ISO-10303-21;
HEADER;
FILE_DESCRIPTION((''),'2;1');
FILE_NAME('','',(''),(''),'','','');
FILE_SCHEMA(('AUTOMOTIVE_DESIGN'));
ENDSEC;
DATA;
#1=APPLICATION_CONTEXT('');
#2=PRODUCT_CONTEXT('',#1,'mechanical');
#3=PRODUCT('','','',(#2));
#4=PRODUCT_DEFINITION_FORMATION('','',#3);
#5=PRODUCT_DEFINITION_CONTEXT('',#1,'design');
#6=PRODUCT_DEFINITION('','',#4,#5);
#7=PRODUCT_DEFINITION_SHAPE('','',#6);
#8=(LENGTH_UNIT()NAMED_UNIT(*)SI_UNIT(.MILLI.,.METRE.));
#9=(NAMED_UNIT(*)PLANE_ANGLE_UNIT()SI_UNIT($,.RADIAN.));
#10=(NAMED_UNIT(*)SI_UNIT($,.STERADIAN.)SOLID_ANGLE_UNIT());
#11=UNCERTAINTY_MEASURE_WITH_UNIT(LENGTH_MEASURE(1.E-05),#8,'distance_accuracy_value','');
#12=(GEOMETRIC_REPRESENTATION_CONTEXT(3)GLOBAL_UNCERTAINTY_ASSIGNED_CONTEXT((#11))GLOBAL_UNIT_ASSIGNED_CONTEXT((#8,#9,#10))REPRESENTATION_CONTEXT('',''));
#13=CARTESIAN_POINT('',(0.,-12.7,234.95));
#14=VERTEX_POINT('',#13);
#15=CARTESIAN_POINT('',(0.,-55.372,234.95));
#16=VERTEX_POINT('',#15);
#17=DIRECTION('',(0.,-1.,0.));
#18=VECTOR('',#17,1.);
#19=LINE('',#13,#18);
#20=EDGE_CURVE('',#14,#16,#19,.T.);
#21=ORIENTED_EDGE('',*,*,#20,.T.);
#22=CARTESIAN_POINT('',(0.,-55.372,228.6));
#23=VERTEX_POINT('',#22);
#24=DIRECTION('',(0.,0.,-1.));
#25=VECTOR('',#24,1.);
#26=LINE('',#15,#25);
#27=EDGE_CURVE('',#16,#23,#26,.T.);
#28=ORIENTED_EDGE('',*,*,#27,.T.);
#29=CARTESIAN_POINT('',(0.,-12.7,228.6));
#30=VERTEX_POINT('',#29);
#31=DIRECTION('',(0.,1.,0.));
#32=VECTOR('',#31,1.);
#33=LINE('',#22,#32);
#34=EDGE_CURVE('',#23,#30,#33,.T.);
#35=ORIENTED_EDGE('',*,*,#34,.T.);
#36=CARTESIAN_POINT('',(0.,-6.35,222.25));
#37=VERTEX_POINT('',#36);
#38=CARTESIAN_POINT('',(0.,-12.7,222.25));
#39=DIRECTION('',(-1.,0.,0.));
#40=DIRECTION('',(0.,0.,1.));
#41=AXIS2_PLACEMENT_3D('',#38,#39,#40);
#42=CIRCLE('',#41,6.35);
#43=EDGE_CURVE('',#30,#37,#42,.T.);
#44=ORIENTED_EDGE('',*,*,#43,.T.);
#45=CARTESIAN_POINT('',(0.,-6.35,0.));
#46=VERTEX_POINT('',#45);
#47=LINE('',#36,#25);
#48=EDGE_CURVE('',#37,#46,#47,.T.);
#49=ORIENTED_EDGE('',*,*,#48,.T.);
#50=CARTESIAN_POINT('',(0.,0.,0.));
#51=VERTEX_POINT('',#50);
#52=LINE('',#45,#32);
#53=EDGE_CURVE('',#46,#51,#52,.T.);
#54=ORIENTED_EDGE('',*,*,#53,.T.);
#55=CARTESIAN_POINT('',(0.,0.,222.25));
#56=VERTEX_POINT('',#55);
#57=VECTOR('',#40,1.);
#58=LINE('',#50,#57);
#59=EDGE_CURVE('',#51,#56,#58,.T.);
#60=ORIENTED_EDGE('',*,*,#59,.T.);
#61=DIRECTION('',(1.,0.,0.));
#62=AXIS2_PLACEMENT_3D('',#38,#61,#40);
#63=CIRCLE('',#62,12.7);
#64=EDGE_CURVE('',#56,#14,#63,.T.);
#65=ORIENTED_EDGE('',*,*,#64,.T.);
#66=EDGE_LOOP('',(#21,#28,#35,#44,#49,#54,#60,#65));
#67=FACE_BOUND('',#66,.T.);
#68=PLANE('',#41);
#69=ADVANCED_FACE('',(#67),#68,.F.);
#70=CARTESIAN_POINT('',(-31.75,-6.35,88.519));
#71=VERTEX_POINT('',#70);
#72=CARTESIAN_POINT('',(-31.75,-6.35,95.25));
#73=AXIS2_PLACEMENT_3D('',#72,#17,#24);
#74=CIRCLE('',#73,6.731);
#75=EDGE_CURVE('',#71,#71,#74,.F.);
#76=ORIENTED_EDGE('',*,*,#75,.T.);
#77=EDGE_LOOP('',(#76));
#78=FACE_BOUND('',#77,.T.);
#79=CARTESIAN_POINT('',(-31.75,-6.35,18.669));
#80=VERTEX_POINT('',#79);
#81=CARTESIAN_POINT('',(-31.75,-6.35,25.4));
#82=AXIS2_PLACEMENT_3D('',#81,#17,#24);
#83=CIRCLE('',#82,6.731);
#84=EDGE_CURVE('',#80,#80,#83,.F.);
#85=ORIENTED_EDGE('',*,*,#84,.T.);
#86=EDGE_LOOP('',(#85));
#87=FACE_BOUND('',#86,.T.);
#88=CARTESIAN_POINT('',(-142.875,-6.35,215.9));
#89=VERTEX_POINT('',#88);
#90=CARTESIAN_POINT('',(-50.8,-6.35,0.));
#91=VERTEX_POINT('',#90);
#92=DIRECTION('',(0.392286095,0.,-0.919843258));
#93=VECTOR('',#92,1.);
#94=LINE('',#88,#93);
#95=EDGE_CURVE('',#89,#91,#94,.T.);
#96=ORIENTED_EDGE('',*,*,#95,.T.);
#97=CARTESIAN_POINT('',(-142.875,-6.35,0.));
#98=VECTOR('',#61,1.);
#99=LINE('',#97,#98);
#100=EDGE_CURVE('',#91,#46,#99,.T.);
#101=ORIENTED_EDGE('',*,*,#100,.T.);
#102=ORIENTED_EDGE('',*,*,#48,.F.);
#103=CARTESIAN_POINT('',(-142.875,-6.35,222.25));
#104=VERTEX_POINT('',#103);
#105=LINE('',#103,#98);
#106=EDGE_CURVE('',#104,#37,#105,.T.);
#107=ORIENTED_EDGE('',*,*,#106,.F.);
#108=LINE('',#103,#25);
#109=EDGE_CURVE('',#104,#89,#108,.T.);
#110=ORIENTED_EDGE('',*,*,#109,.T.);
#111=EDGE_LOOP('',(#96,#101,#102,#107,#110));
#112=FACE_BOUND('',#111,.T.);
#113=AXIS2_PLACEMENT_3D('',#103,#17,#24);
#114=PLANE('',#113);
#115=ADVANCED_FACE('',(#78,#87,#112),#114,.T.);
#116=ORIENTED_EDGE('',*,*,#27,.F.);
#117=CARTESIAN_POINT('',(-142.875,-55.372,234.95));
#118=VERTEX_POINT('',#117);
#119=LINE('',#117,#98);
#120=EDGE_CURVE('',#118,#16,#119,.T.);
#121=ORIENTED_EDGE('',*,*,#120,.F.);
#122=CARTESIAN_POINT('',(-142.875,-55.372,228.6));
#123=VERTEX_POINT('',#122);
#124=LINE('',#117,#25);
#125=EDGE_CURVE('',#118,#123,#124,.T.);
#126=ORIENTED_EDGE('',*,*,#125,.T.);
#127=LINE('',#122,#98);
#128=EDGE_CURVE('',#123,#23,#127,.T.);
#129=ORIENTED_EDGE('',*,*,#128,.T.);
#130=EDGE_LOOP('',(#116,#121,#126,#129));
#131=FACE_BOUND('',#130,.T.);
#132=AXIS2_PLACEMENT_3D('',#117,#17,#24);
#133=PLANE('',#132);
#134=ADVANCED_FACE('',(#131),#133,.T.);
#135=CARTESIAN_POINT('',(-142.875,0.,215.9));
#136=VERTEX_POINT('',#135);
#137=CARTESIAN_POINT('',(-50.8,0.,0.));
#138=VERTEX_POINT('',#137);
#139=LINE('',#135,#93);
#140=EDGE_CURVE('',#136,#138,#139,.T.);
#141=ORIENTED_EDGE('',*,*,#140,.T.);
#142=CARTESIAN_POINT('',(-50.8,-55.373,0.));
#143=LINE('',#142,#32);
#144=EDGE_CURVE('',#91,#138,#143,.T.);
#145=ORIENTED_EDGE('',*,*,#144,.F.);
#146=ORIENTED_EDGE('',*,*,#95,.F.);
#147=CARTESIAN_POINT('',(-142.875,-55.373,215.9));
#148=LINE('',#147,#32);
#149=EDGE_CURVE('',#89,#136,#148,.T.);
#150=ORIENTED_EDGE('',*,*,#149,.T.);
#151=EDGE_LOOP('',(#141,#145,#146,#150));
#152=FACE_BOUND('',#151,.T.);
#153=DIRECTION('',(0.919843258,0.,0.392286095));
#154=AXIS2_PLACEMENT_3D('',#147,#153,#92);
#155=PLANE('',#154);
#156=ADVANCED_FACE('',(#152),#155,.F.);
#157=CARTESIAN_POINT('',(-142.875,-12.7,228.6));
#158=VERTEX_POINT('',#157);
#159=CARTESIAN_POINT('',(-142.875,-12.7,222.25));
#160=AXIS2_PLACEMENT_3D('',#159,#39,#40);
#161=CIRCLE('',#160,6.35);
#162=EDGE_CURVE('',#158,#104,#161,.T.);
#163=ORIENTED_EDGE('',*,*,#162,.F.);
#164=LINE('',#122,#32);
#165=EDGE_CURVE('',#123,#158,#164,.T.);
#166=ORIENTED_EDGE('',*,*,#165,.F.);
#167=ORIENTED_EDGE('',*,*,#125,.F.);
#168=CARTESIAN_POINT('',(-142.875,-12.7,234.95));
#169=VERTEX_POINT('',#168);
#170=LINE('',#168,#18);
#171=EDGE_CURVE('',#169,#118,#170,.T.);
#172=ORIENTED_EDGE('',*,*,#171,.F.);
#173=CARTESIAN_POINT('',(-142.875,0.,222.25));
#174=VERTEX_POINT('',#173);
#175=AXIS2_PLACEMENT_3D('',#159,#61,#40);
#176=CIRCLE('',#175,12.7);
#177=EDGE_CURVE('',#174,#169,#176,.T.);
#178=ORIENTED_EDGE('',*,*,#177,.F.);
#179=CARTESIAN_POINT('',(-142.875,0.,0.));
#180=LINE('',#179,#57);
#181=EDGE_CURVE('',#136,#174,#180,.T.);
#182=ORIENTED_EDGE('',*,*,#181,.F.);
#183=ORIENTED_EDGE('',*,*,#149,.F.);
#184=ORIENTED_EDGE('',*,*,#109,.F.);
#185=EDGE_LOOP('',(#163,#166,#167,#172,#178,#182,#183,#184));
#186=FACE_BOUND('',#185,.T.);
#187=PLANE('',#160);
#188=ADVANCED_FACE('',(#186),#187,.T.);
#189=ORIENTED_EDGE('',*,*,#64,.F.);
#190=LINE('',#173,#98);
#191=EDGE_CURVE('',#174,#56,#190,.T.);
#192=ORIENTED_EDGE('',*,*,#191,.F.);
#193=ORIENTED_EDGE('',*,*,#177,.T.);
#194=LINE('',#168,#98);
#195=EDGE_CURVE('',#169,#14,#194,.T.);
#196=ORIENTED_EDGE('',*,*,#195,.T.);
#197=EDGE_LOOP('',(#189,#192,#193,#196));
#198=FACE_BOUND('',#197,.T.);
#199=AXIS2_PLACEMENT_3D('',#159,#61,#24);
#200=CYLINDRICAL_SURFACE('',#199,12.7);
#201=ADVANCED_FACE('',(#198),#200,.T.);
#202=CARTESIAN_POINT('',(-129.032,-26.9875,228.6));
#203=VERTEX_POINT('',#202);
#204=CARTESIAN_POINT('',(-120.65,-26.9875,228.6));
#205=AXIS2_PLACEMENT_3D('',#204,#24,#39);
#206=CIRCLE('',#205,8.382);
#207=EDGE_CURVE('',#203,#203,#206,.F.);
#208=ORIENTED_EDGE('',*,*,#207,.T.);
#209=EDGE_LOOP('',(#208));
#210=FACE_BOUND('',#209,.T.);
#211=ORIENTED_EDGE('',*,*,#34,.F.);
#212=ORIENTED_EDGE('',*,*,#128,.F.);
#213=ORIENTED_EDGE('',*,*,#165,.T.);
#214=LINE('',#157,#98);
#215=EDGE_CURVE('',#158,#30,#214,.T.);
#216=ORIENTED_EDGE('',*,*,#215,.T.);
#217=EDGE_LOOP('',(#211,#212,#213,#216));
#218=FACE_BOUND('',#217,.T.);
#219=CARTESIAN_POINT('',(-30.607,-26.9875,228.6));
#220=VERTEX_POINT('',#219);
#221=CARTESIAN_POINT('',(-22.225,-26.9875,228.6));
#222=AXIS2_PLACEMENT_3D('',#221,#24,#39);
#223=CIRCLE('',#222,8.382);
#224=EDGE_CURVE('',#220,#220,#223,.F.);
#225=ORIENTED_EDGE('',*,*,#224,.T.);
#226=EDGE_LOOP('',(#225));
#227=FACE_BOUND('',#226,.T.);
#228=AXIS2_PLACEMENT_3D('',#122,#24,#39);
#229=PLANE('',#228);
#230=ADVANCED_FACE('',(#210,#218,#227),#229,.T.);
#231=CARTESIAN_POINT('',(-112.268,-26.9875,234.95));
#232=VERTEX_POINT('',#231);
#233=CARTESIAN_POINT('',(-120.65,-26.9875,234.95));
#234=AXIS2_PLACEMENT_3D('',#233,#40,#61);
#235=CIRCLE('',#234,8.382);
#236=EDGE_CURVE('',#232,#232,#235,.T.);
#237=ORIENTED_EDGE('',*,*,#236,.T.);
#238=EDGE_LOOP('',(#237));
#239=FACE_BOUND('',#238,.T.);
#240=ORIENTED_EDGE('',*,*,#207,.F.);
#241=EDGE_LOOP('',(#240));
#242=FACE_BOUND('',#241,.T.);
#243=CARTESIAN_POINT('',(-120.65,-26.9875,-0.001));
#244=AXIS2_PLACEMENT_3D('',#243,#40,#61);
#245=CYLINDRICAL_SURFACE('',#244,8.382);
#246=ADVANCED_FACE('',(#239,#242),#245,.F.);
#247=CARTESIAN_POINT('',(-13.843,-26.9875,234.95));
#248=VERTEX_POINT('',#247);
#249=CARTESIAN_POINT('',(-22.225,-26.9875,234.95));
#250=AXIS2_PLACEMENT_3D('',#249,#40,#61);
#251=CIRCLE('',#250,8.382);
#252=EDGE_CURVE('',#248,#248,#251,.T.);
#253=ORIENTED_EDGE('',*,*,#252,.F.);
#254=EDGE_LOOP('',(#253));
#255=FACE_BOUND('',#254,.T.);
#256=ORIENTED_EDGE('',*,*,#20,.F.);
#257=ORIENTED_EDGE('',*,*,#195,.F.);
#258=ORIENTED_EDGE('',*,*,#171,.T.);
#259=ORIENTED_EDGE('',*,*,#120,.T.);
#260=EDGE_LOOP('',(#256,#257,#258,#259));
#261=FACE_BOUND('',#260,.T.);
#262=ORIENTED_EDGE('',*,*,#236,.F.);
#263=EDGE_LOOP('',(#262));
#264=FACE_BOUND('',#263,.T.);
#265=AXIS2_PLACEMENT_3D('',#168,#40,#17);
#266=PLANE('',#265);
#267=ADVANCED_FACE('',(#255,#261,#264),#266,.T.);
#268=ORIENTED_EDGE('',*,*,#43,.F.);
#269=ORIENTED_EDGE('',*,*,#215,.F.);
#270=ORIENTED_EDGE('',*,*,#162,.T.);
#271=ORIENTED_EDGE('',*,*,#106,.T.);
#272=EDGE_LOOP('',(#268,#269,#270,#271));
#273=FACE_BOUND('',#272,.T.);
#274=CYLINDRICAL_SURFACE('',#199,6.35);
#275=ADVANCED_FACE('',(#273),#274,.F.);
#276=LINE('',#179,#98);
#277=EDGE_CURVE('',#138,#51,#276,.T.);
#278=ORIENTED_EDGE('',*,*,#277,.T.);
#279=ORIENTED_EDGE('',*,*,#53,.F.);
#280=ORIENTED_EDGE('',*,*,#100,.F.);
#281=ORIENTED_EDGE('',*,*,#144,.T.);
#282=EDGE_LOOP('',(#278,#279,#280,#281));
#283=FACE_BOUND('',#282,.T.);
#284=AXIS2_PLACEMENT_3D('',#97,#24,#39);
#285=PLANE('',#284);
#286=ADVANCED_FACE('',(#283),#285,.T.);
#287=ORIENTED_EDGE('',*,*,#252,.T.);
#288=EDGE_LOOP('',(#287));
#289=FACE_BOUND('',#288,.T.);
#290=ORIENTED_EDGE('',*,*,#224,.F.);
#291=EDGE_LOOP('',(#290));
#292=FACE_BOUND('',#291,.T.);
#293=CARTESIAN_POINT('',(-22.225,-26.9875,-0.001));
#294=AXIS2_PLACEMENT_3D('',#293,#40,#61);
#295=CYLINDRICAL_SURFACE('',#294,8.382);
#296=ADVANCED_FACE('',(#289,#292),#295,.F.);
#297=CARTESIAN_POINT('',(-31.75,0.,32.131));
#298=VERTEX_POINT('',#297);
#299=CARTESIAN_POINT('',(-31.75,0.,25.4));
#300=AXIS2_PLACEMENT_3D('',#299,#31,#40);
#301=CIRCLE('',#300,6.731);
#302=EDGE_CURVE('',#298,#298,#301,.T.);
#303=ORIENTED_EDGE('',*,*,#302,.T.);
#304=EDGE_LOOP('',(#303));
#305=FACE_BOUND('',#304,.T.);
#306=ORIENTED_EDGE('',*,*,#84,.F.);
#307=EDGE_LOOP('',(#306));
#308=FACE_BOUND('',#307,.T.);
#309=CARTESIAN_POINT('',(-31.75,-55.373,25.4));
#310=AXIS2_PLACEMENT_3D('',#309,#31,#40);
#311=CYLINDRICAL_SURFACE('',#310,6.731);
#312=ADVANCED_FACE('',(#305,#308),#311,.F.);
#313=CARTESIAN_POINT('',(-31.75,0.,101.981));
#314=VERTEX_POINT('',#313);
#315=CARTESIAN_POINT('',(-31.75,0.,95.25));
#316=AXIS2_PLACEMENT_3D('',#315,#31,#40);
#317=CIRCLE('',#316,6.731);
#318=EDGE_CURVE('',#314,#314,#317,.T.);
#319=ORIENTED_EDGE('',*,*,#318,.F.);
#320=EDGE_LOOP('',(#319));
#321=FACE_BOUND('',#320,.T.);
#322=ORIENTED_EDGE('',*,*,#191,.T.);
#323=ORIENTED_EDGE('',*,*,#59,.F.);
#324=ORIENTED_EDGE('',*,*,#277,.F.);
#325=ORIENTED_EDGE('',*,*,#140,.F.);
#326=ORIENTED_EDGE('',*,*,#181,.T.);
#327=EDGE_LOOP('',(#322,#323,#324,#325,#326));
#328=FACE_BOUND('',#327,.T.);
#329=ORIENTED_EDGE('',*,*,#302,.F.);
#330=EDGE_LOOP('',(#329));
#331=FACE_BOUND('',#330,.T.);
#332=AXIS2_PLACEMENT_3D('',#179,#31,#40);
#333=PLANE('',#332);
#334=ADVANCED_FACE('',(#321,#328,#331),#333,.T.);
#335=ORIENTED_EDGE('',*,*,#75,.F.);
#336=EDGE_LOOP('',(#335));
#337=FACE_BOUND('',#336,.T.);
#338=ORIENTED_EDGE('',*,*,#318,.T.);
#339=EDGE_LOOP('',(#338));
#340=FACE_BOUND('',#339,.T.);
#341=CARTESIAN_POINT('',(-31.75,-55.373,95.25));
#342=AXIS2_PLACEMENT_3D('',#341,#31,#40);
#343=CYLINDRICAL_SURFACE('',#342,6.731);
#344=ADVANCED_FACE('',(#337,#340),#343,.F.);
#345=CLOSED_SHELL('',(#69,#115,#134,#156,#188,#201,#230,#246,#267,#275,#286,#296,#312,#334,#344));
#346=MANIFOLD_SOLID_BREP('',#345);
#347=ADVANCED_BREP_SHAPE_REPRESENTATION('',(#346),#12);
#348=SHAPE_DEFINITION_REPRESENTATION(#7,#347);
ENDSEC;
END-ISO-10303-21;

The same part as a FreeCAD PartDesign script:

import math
import FreeCAD as App
import Part
import Sketcher
Q = App.Units.Quantity


def add_polygon(sketch, points):
    """Adds a closed chain of lines whose ends are joined by coincident constraints."""
    first, n = sketch.GeometryCount, len(points)
    for a, b in zip(points, points[1:] + points[:1]):
        sketch.addGeometry(Part.LineSegment(App.Vector(*a, 0), App.Vector(*b, 0)), False)
    for i in range(n):
        sketch.addConstraint(Sketcher.Constraint("Coincident", first + i, 2, first + (i + 1) % n, 1))

doc = App.newDocument("Part")
body = doc.addObject("PartDesign::Body", "Body")

# Sketch on YZ plane
sketch1 = body.newObject("Sketcher::SketchObject", "Sketch")
sketch1.AttachmentSupport = (doc.getObject("YZ_Plane"), [""])
sketch1.MapMode = "FlatFace"
sketch1.addGeometry([
    Part.LineSegment(App.Vector(0, 0, 0), App.Vector(0, 222.25, 0)),  # 0
    Part.ArcOfCircle(Part.Circle(App.Vector(-12.7, 222.25, 0), App.Vector(0, 0, 1), 12.7), math.radians(0), math.radians(90)),  # 1
    Part.LineSegment(App.Vector(-12.7, 234.95, 0), App.Vector(-55.372, 234.95, 0)),  # 2
    Part.LineSegment(App.Vector(-55.372, 234.95, 0), App.Vector(-55.372, 228.6, 0)),  # 3
    Part.LineSegment(App.Vector(-55.372, 228.6, 0), App.Vector(-12.7, 228.6, 0)),  # 4
    Part.ArcOfCircle(Part.Circle(App.Vector(-12.7, 222.25, 0), App.Vector(0, 0, 1), 6.35), math.radians(0), math.radians(90)),  # 5
    Part.LineSegment(App.Vector(-6.35, 222.25, 0), App.Vector(-6.35, 0, 0)),  # 6
    Part.LineSegment(App.Vector(-6.35, 0, 0), App.Vector(0, 0, 0)),  # 7
], False)
sketch1.addConstraint([
    Sketcher.Constraint("Tangent", 0, 2, 1, 1),
    Sketcher.Constraint("Tangent", 1, 2, 2, 1),
    Sketcher.Constraint("Coincident", 2, 2, 3, 1),
    Sketcher.Constraint("Coincident", 3, 2, 4, 1),
    Sketcher.Constraint("Tangent", 4, 2, 5, 2),
    Sketcher.Constraint("Tangent", 5, 1, 6, 1),
    Sketcher.Constraint("Coincident", 6, 2, 7, 1),
    Sketcher.Constraint("Coincident", 7, 2, 0, 1),
    Sketcher.Constraint("Vertical", 0),
    Sketcher.Constraint("Horizontal", 2),
    Sketcher.Constraint("Vertical", 3),
    Sketcher.Constraint("Horizontal", 4),
    Sketcher.Constraint("Vertical", 6),
    Sketcher.Constraint("Horizontal", 7),
    Sketcher.Constraint("Coincident", 7, 2, -1, 1),
    Sketcher.Constraint("Coincident", 5, 3, 1, 3),
    Sketcher.Constraint("Radius", 1, Q("0.5 in")),
    Sketcher.Constraint("Radius", 5, Q("0.25 in")),
    Sketcher.Constraint("DistanceY", -1, 1, 3, 2, Q("9 in")),
    Sketcher.Constraint("DistanceX", 2, 2, 2, 1, Q("1.68 in")),
])
pad1 = body.newObject("PartDesign::Pad", "Pad")
pad1.Profile = sketch1
pad1.Length = Q("5.625 in")
pad1.Reversed = True

# Sketch on XY plane
sketch2 = body.newObject("Sketcher::SketchObject", "Sketch001")
sketch2.AttachmentSupport = (doc.getObject("XY_Plane"), [""])
sketch2.MapMode = "FlatFace"
sketch2.AttachmentOffset = App.Placement(App.Vector(0, 0, 9.25 * 25.4), App.Rotation())
sketch2.addGeometry(Part.Circle(App.Vector(-120.65, -26.9875, 0), App.Vector(0, 0, 1), 8.382), False)
sketch2.addConstraint([
    Sketcher.Constraint("Diameter", 0, Q("0.66 in")),
    Sketcher.Constraint("DistanceX", 0, 3, -1, 1, Q("4.75 in")),
    Sketcher.Constraint("DistanceY", 0, 3, -1, 1, Q("1.0625 in")),
])
pocket1 = body.newObject("PartDesign::Pocket", "Pocket")
pocket1.Profile = sketch2
pocket1.Type = "UpToFirst"

# Sketch on XY plane
sketch3 = body.newObject("Sketcher::SketchObject", "Sketch002")
sketch3.AttachmentSupport = (doc.getObject("XY_Plane"), [""])
sketch3.MapMode = "FlatFace"
sketch3.AttachmentOffset = App.Placement(App.Vector(0, 0, 9.25 * 25.4), App.Rotation())
sketch3.addGeometry(Part.Circle(App.Vector(-22.225, -26.9875, 0), App.Vector(0, 0, 1), 8.382), False)
sketch3.addConstraint([
    Sketcher.Constraint("Diameter", 0, Q("0.66 in")),
    Sketcher.Constraint("DistanceX", 0, 3, -1, 1, Q("0.875 in")),
    Sketcher.Constraint("DistanceY", 0, 3, -1, 1, Q("1.0625 in")),
])
pocket2 = body.newObject("PartDesign::Pocket", "Pocket001")
pocket2.Profile = sketch3
pocket2.Type = "UpToFirst"

# Sketch on XZ plane
sketch4 = body.newObject("Sketcher::SketchObject", "Sketch003")
sketch4.AttachmentSupport = (doc.getObject("XZ_Plane"), [""])
sketch4.MapMode = "FlatFace"
sketch4.addGeometry(Part.Circle(App.Vector(-31.75, 95.25, 0), App.Vector(0, 0, 1), 6.731), False)
sketch4.addConstraint([
    Sketcher.Constraint("Diameter", 0, Q("0.53 in")),
    Sketcher.Constraint("DistanceX", 0, 3, -1, 1, Q("1.25 in")),
    Sketcher.Constraint("DistanceY", -1, 1, 0, 3, Q("3.75 in")),
])
pocket3 = body.newObject("PartDesign::Pocket", "Pocket002")
pocket3.Profile = sketch4
pocket3.Type = "UpToFirst"
pocket3.Reversed = True

# Sketch on XZ plane
sketch5 = body.newObject("Sketcher::SketchObject", "Sketch004")
sketch5.AttachmentSupport = (doc.getObject("XZ_Plane"), [""])
sketch5.MapMode = "FlatFace"
sketch5.addGeometry(Part.Circle(App.Vector(-31.75, 25.4, 0), App.Vector(0, 0, 1), 6.731), False)
sketch5.addConstraint([
    Sketcher.Constraint("Diameter", 0, Q("0.53 in")),
    Sketcher.Constraint("DistanceY", -1, 1, 0, 3, Q("1 in")),
    Sketcher.Constraint("DistanceX", 0, 3, -1, 1, Q("1.25 in")),
])
pocket4 = body.newObject("PartDesign::Pocket", "Pocket003")
pocket4.Profile = sketch5
pocket4.Type = "UpToFirst"
pocket4.Reversed = True

# Sketch on XZ plane
sketch6 = body.newObject("Sketcher::SketchObject", "Sketch005")
sketch6.AttachmentSupport = (doc.getObject("XZ_Plane"), [""])
sketch6.MapMode = "FlatFace"
add_polygon(sketch6, [(-142.875, 215.9), (-50.8, 0), (-142.875, 0)])  # lines 0-2
sketch6.addConstraint([
    Sketcher.Constraint("Horizontal", 1),
    Sketcher.Constraint("Vertical", 2),
    Sketcher.Constraint("PointOnObject", 0, 2, -1),
    Sketcher.Constraint("DistanceY", 2, 1, 2, 2, Q("8.5 in")),
    Sketcher.Constraint("DistanceX", 0, 2, -1, 1, Q("2 in")),
    Sketcher.Constraint("DistanceX", 1, 2, 1, 1, Q("3.625 in")),
])
pocket5 = body.newObject("PartDesign::Pocket", "Pocket004")
pocket5.Profile = sketch6
pocket5.Type = "UpToFirst"
pocket5.Reversed = True

doc.recompute()
